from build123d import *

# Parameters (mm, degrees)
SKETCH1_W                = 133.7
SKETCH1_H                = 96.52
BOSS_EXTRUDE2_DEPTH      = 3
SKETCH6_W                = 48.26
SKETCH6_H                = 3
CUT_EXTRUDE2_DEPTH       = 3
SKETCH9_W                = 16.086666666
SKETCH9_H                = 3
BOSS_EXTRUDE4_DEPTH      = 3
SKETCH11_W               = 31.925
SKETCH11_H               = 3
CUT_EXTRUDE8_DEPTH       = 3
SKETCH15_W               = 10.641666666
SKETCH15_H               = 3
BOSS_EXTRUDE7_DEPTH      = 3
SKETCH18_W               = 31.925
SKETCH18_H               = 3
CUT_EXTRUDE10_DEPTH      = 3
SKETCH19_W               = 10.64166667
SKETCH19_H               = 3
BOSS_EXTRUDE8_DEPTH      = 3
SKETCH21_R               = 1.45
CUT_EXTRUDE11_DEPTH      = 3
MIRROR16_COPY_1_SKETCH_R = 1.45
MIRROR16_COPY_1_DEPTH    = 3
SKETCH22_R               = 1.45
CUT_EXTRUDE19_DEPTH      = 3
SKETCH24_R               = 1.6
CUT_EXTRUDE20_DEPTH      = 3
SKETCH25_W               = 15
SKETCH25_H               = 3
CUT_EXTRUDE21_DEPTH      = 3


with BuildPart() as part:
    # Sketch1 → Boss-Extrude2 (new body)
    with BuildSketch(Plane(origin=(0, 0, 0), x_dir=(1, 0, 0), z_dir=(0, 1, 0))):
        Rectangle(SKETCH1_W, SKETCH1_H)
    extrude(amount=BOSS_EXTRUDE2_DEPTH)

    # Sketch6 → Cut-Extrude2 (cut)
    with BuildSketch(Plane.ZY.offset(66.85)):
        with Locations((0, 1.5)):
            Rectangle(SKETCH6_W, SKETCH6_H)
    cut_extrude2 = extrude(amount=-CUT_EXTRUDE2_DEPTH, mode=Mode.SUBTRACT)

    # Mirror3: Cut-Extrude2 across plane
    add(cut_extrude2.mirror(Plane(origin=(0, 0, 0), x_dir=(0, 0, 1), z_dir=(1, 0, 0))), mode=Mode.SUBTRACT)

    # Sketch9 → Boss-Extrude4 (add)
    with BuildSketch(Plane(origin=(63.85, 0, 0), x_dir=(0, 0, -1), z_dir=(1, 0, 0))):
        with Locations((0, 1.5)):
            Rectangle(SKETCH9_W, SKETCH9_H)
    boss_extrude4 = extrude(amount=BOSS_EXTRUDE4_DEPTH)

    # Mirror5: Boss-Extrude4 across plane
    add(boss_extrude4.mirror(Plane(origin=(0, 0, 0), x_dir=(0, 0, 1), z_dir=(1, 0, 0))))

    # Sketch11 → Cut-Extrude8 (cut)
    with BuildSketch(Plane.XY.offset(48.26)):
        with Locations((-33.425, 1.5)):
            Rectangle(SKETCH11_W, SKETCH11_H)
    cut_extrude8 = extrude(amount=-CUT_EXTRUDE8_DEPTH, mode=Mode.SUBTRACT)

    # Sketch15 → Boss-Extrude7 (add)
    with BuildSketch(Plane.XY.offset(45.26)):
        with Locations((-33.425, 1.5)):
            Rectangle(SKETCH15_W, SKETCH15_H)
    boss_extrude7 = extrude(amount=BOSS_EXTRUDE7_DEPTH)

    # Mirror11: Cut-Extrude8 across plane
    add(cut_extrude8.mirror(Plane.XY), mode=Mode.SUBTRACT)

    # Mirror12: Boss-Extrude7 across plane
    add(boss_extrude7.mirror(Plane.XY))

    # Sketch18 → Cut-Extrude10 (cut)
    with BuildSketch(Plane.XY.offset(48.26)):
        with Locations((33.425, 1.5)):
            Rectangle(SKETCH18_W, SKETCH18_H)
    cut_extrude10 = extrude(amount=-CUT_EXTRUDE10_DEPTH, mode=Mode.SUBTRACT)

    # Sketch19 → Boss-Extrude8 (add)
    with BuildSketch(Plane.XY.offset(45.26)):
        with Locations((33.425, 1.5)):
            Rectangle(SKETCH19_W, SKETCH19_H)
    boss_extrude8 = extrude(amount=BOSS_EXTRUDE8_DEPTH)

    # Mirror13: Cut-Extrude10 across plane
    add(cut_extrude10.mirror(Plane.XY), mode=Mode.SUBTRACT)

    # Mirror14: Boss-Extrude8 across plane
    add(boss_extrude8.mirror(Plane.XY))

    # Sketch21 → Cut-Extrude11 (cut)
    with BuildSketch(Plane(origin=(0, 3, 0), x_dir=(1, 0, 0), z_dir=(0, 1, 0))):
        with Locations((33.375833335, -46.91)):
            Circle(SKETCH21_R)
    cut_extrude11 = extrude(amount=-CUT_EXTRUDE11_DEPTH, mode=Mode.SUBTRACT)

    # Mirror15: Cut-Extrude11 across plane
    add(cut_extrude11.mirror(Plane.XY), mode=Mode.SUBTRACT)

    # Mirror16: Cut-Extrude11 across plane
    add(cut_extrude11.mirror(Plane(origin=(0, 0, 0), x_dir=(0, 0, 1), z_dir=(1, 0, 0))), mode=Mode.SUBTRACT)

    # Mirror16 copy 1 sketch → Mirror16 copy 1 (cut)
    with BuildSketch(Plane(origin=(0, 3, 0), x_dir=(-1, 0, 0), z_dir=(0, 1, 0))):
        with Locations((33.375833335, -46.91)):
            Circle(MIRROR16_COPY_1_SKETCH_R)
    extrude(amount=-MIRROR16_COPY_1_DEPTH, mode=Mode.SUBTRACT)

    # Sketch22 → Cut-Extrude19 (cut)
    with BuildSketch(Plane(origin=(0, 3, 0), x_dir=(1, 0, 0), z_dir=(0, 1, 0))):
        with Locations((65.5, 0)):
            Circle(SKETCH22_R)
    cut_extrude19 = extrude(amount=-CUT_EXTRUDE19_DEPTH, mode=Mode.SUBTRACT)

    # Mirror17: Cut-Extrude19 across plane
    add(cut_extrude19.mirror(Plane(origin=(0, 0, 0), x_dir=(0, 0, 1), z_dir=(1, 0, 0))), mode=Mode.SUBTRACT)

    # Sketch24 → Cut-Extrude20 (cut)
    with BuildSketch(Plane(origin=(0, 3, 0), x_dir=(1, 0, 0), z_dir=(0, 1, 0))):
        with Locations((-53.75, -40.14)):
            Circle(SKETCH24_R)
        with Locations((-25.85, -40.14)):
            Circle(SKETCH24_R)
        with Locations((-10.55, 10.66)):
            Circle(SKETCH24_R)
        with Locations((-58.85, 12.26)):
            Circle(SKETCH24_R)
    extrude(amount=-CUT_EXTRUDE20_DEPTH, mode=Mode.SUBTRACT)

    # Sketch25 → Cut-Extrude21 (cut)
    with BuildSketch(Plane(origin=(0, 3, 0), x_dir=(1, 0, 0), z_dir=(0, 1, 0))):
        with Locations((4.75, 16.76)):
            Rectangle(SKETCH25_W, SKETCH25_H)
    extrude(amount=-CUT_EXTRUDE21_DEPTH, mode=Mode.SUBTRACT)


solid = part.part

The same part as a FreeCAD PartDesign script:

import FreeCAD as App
import Part
import Sketcher
from FreeCAD import Vector
Q = App.Units.Quantity


def add_polygon(sketch, points):
    """Adds a closed chain of lines whose ends are joined by coincident constraints."""
    first, n = sketch.GeometryCount, len(points)
    for a, b in zip(points, points[1:] + points[:1]):
        sketch.addGeometry(Part.LineSegment(App.Vector(*a, 0), App.Vector(*b, 0)), False)
    for i in range(n):
        sketch.addConstraint(Sketcher.Constraint("Coincident", first + i, 2, first + (i + 1) % n, 1))

doc = App.newDocument("Part")
body = doc.addObject("PartDesign::Body", "Body")

sketch1 = body.newObject("Sketcher::SketchObject", "Sketch")
sketch1.AttachmentSupport = (doc.getObject("XZ_Plane"), [""])
sketch1.MapMode = "FlatFace"
add_polygon(sketch1, [(-67, -48), (-67, 48), (67, 48), (67, -48)])
sketch1.addConstraint([
    Sketcher.Constraint("Vertical", 0),
    Sketcher.Constraint("Horizontal", 1),
    Sketcher.Constraint("Vertical", 2),
    Sketcher.Constraint("Horizontal", 3),
    Sketcher.Constraint("Symmetric", 0, 2, 2, 2, -1, 1),
    Sketcher.Constraint("DistanceX", 1, 1, 1, 2, Q("133.7 mm")),
    Sketcher.Constraint("DistanceY", 0, 1, 0, 2, Q("96.52 mm")),
])
pad1 = body.newObject("PartDesign::Pad", "Pad")
pad1.Profile = sketch1
pad1.Length = 3
pad1.Reversed = True

sketch2 = body.newObject("Sketcher::SketchObject", "Sketch001")
sketch2.AttachmentSupport = (doc.getObject("YZ_Plane"), [""])
sketch2.MapMode = "FlatFace"
sketch2.AttachmentOffset = App.Placement(Vector(0, 0, -66.85), App.Rotation())
add_polygon(sketch2, [(3, -24.1), (0, -24.1), (0, 24.1), (3, 24.1)])
sketch2.addConstraint([
    Sketcher.Constraint("Horizontal", 0),
    Sketcher.Constraint("Vertical", 1),
    Sketcher.Constraint("Horizontal", 2),
    Sketcher.Constraint("Vertical", 3),
    Sketcher.Constraint("Symmetric", 0, 2, 1, 2, -1, 1),
    Sketcher.Constraint("DistanceX", 0, 2, 0, 1, Q("3 mm")),
    Sketcher.Constraint("DistanceY", 1, 1, 1, 2, Q("48.26 mm")),
])
pocket1 = body.newObject("PartDesign::Pocket", "Pocket")
pocket1.Profile = sketch2
pocket1.Length = 3
pocket1.Reversed = True
doc.recompute()

mirrored = body.newObject("PartDesign::Mirrored", "Mirrored")
mirrored.Originals = [pocket1]
mirrored.MirrorPlane = (doc.getObject("YZ_Plane"), [""])
body.Tip = mirrored

sketch3 = body.newObject("Sketcher::SketchObject", "Sketch002")
sketch3.AttachmentSupport = (doc.getObject("YZ_Plane"), [""])
sketch3.MapMode = "FlatFace"
sketch3.AttachmentOffset = App.Placement(Vector(0, 0, 63.85), App.Rotation())
add_polygon(sketch3, [(3, 8), (0, 8), (0, -8), (3, -8)])
sketch3.addConstraint([
    Sketcher.Constraint("Horizontal", 0),
    Sketcher.Constraint("Vertical", 1),
    Sketcher.Constraint("Horizontal", 2),
    Sketcher.Constraint("Vertical", 3),
    Sketcher.Constraint("Symmetric", 0, 2, 1, 2, -1, 1),
    Sketcher.Constraint("DistanceX", 0, 2, 0, 1, Q("3 mm")),
    Sketcher.Constraint("DistanceY", 1, 2, 1, 1, Q("16.086667 mm")),
])
pad2 = body.newObject("PartDesign::Pad", "Pad001")
pad2.Profile = sketch3
pad2.Length = 3
doc.recompute()

mirrored2 = body.newObject("PartDesign::Mirrored", "Mirrored001")
mirrored2.Originals = [pad2]
mirrored2.MirrorPlane = (doc.getObject("YZ_Plane"), [""])
body.Tip = mirrored2

sketch4 = body.newObject("Sketcher::SketchObject", "Sketch003")
sketch4.AttachmentSupport = (doc.getObject("XY_Plane"), [""])
sketch4.MapMode = "FlatFace"
sketch4.AttachmentOffset = App.Placement(Vector(0, 0, 48.26), App.Rotation())
add_polygon(sketch4, [(-49.4, 3), (-49.4, 0), (-17.5, 0), (-17.5, 3)])
sketch4.addConstraint([
    Sketcher.Constraint("Vertical", 0),
    Sketcher.Constraint("Horizontal", 1),
    Sketcher.Constraint("Vertical", 2),
    Sketcher.Constraint("Horizontal", 3),
    Sketcher.Constraint("PointOnObject", 0, 2, -1),
    Sketcher.Constraint("DistanceY", 0, 2, 0, 1, Q("3 mm")),
    Sketcher.Constraint("DistanceX", 1, 1, 1, 2, Q("31.925 mm")),
    Sketcher.Constraint("DistanceX", 0, 2, -1, 1, Q("49.3875 mm")),
])
pocket2 = body.newObject("PartDesign::Pocket", "Pocket001")
pocket2.Profile = sketch4
pocket2.Length = 3

sketch5 = body.newObject("Sketcher::SketchObject", "Sketch004")
sketch5.AttachmentSupport = (doc.getObject("XY_Plane"), [""])
sketch5.MapMode = "FlatFace"
sketch5.AttachmentOffset = App.Placement(Vector(0, 0, 45.26), App.Rotation())
add_polygon(sketch5, [(-38.7, 3), (-38.7, 0), (-28.1, 0), (-28.1, 3)])
sketch5.addConstraint([
    Sketcher.Constraint("Vertical", 0),
    Sketcher.Constraint("Horizontal", 1),
    Sketcher.Constraint("Vertical", 2),
    Sketcher.Constraint("Horizontal", 3),
    Sketcher.Constraint("PointOnObject", 0, 2, -1),
    Sketcher.Constraint("DistanceY", 0, 2, 0, 1, Q("3 mm")),
    Sketcher.Constraint("DistanceX", 1, 1, 1, 2, Q("10.641667 mm")),
    Sketcher.Constraint("DistanceX", 0, 2, -1, 1, Q("38.745833 mm")),
])
pad3 = body.newObject("PartDesign::Pad", "Pad002")
pad3.Profile = sketch5
pad3.Length = 3
doc.recompute()

mirrored3 = body.newObject("PartDesign::Mirrored", "Mirrored002")
mirrored3.Originals = [pocket2]
mirrored3.MirrorPlane = (doc.getObject("XY_Plane"), [""])
body.Tip = mirrored3
doc.recompute()

mirrored4 = body.newObject("PartDesign::Mirrored", "Mirrored003")
mirrored4.Originals = [pad3]
mirrored4.MirrorPlane = (doc.getObject("XY_Plane"), [""])
body.Tip = mirrored4

sketch6 = body.newObject("Sketcher::SketchObject", "Sketch005")
sketch6.AttachmentSupport = (doc.getObject("XY_Plane"), [""])
sketch6.MapMode = "FlatFace"
sketch6.AttachmentOffset = App.Placement(Vector(0, 0, 48.26), App.Rotation())
add_polygon(sketch6, [(17.5, 3), (17.5, 0), (49.4, 0), (49.4, 3)])
sketch6.addConstraint([
    Sketcher.Constraint("Vertical", 0),
    Sketcher.Constraint("Horizontal", 1),
    Sketcher.Constraint("Vertical", 2),
    Sketcher.Constraint("Horizontal", 3),
    Sketcher.Constraint("PointOnObject", 0, 2, -1),
    Sketcher.Constraint("DistanceY", 0, 2, 0, 1, Q("3 mm")),
    Sketcher.Constraint("DistanceX", 1, 1, 1, 2, Q("31.925 mm")),
    Sketcher.Constraint("DistanceX", -1, 1, 0, 2, Q("17.4625 mm")),
])
pocket3 = body.newObject("PartDesign::Pocket", "Pocket002")
pocket3.Profile = sketch6
pocket3.Length = 3

sketch7 = body.newObject("Sketcher::SketchObject", "Sketch006")
sketch7.AttachmentSupport = (doc.getObject("XY_Plane"), [""])
sketch7.MapMode = "FlatFace"
sketch7.AttachmentOffset = App.Placement(Vector(0, 0, 45.26), App.Rotation())
add_polygon(sketch7, [(28.1, 3), (28.1, 0), (38.7, 0), (38.7, 3)])
sketch7.addConstraint([
    Sketcher.Constraint("Vertical", 0),
    Sketcher.Constraint("Horizontal", 1),
    Sketcher.Constraint("Vertical", 2),
    Sketcher.Constraint("Horizontal", 3),
    Sketcher.Constraint("PointOnObject", 0, 2, -1),
    Sketcher.Constraint("DistanceY", 0, 2, 0, 1, Q("3 mm")),
    Sketcher.Constraint("DistanceX", 1, 1, 1, 2, Q("10.641667 mm")),
    Sketcher.Constraint("DistanceX", -1, 1, 0, 2, Q("28.104167 mm")),
])
pad4 = body.newObject("PartDesign::Pad", "Pad003")
pad4.Profile = sketch7
pad4.Length = 3
doc.recompute()

mirrored5 = body.newObject("PartDesign::Mirrored", "Mirrored004")
mirrored5.Originals = [pocket3]
mirrored5.MirrorPlane = (doc.getObject("XY_Plane"), [""])
body.Tip = mirrored5
doc.recompute()

mirrored6 = body.newObject("PartDesign::Mirrored", "Mirrored005")
mirrored6.Originals = [pad4]
mirrored6.MirrorPlane = (doc.getObject("XY_Plane"), [""])
body.Tip = mirrored6

sketch8 = body.newObject("Sketcher::SketchObject", "Sketch007")
sketch8.AttachmentSupport = (doc.getObject("XZ_Plane"), [""])
sketch8.MapMode = "FlatFace"
sketch8.AttachmentOffset = App.Placement(Vector(0, 0, -3), App.Rotation())
sketch8.addGeometry(Part.Circle(Vector(33.4, 46.9, 0), Vector(0, 0, 1), 1.4), False)
sketch8.addConstraint([
    Sketcher.Constraint("Diameter", 0, Q("2.9 mm")),
    Sketcher.Constraint("DistanceY", -1, 1, 0, 3, Q("46.91 mm")),
    Sketcher.Constraint("DistanceX", -1, 1, 0, 3, Q("33.375833 mm")),
])
pocket4 = body.newObject("PartDesign::Pocket", "Pocket003")
pocket4.Profile = sketch8
pocket4.Length = 3
pocket4.Reversed = True
doc.recompute()

mirrored7 = body.newObject("PartDesign::Mirrored", "Mirrored006")
mirrored7.Originals = [pocket4]
mirrored7.MirrorPlane = (doc.getObject("XY_Plane"), [""])
body.Tip = mirrored7
doc.recompute()

mirrored8 = body.newObject("PartDesign::Mirrored", "Mirrored007")
mirrored8.Originals = [pocket4]
mirrored8.MirrorPlane = (doc.getObject("YZ_Plane"), [""])
body.Tip = mirrored8

sketch9 = body.newObject("Sketcher::SketchObject", "Sketch008")
sketch9.AttachmentSupport = (doc.getObject("XZ_Plane"), [""])
sketch9.MapMode = "FlatFace"
sketch9.AttachmentOffset = App.Placement(Vector(0, 0, -3), App.Rotation())
sketch9.addGeometry(Part.Circle(Vector(-33.4, -46.9, 0), Vector(0, 0, 1), 1.4), False)
sketch9.addConstraint([
    Sketcher.Constraint("Diameter", 0, Q("2.9 mm")),
    Sketcher.Constraint("DistanceY", 0, 3, -1, 1, Q("46.91 mm")),
    Sketcher.Constraint("DistanceX", 0, 3, -1, 1, Q("33.375833 mm")),
])
pocket5 = body.newObject("PartDesign::Pocket", "Pocket004")
pocket5.Profile = sketch9
pocket5.Length = 3
pocket5.Reversed = True

sketch10 = body.newObject("Sketcher::SketchObject", "Sketch009")
sketch10.AttachmentSupport = (doc.getObject("XZ_Plane"), [""])
sketch10.MapMode = "FlatFace"
sketch10.AttachmentOffset = App.Placement(Vector(0, 0, -3), App.Rotation())
sketch10.addGeometry(Part.Circle(Vector(65.5, 0, 0), Vector(0, 0, 1), 1.4), False)
sketch10.addConstraint([
    Sketcher.Constraint("PointOnObject", 0, 3, -1),
    Sketcher.Constraint("Diameter", 0, Q("2.9 mm")),
    Sketcher.Constraint("DistanceX", -1, 1, 0, 3, Q("65.5 mm")),
])
pocket6 = body.newObject("PartDesign::Pocket", "Pocket005")
pocket6.Profile = sketch10
pocket6.Length = 3
pocket6.Reversed = True
doc.recompute()

mirrored9 = body.newObject("PartDesign::Mirrored", "Mirrored008")
mirrored9.Originals = [pocket6]
mirrored9.MirrorPlane = (doc.getObject("YZ_Plane"), [""])
body.Tip = mirrored9

sketch11 = body.newObject("Sketcher::SketchObject", "Sketch010")
sketch11.AttachmentSupport = (doc.getObject("XZ_Plane"), [""])
sketch11.MapMode = "FlatFace"
sketch11.AttachmentOffset = App.Placement(Vector(0, 0, -3), App.Rotation())
sketch11.addGeometry([
    Part.Circle(Vector(-53.8, 40.1, 0), Vector(0, 0, 1), 1.6),
    Part.Circle(Vector(-25.9, 40.1, 0), Vector(0, 0, 1), 1.6),
    Part.Circle(Vector(-10.6, -10.7, 0), Vector(0, 0, 1), 1.6),
    Part.Circle(Vector(-58.9, -12.3, 0), Vector(0, 0, 1), 1.6),
], False)
sketch11.addConstraint([
    Sketcher.Constraint("Equal", 0, 1),
    Sketcher.Constraint("Equal", 1, 2),
    Sketcher.Constraint("Equal", 2, 3),
    Sketcher.Constraint("Horizontal", 0, 3, 1, 3),
    Sketcher.Constraint("Diameter", 0, Q("3.2 mm")),
    Sketcher.Constraint("DistanceX", 3, 3, 1, 3, Q("33 mm")),
    Sketcher.Constraint("DistanceX", 0, 3, 1, 3, Q("27.9 mm")),
    Sketcher.Constraint("DistanceX", 1, 3, 2, 3, Q("15.3 mm")),
    Sketcher.Constraint("DistanceY", 2, 3, 1, 3, Q("50.8 mm")),
    Sketcher.Constraint("DistanceY", 3, 3, 2, 3, Q("1.6 mm")),
    Sketcher.Constraint("DistanceX", 0, 3, -1, 1, Q("53.75 mm")),
    Sketcher.Constraint("DistanceY", -1, 1, 0, 3, Q("40.14 mm")),
])
pocket7 = body.newObject("PartDesign::Pocket", "Pocket006")
pocket7.Profile = sketch11
pocket7.Length = 3
pocket7.Reversed = True

sketch12 = body.newObject("Sketcher::SketchObject", "Sketch011")
sketch12.AttachmentSupport = (doc.getObject("XZ_Plane"), [""])
sketch12.MapMode = "FlatFace"
sketch12.AttachmentOffset = App.Placement(Vector(0, 0, -3), App.Rotation())
add_polygon(sketch12, [(-2.8, -18.3), (-2.8, -15.3), (12.2, -15.3), (12.2, -18.3)])
sketch12.addConstraint([
    Sketcher.Constraint("Vertical", 0),
    Sketcher.Constraint("Horizontal", 1),
    Sketcher.Constraint("Vertical", 2),
    Sketcher.Constraint("Horizontal", 3),
    Sketcher.Constraint("DistanceX", 1, 1, 1, 2, Q("15 mm")),
    Sketcher.Constraint("DistanceY", 0, 1, 0, 2, Q("3 mm")),
    Sketcher.Constraint("DistanceX", 0, 2, -1, 1, Q("2.75 mm")),
    Sketcher.Constraint("DistanceY", 0, 2, -1, 1, Q("15.26 mm")),
])
pocket8 = body.newObject("PartDesign::Pocket", "Pocket007")
pocket8.Profile = sketch12
pocket8.Length = 3
pocket8.Reversed = True

doc.recompute()
